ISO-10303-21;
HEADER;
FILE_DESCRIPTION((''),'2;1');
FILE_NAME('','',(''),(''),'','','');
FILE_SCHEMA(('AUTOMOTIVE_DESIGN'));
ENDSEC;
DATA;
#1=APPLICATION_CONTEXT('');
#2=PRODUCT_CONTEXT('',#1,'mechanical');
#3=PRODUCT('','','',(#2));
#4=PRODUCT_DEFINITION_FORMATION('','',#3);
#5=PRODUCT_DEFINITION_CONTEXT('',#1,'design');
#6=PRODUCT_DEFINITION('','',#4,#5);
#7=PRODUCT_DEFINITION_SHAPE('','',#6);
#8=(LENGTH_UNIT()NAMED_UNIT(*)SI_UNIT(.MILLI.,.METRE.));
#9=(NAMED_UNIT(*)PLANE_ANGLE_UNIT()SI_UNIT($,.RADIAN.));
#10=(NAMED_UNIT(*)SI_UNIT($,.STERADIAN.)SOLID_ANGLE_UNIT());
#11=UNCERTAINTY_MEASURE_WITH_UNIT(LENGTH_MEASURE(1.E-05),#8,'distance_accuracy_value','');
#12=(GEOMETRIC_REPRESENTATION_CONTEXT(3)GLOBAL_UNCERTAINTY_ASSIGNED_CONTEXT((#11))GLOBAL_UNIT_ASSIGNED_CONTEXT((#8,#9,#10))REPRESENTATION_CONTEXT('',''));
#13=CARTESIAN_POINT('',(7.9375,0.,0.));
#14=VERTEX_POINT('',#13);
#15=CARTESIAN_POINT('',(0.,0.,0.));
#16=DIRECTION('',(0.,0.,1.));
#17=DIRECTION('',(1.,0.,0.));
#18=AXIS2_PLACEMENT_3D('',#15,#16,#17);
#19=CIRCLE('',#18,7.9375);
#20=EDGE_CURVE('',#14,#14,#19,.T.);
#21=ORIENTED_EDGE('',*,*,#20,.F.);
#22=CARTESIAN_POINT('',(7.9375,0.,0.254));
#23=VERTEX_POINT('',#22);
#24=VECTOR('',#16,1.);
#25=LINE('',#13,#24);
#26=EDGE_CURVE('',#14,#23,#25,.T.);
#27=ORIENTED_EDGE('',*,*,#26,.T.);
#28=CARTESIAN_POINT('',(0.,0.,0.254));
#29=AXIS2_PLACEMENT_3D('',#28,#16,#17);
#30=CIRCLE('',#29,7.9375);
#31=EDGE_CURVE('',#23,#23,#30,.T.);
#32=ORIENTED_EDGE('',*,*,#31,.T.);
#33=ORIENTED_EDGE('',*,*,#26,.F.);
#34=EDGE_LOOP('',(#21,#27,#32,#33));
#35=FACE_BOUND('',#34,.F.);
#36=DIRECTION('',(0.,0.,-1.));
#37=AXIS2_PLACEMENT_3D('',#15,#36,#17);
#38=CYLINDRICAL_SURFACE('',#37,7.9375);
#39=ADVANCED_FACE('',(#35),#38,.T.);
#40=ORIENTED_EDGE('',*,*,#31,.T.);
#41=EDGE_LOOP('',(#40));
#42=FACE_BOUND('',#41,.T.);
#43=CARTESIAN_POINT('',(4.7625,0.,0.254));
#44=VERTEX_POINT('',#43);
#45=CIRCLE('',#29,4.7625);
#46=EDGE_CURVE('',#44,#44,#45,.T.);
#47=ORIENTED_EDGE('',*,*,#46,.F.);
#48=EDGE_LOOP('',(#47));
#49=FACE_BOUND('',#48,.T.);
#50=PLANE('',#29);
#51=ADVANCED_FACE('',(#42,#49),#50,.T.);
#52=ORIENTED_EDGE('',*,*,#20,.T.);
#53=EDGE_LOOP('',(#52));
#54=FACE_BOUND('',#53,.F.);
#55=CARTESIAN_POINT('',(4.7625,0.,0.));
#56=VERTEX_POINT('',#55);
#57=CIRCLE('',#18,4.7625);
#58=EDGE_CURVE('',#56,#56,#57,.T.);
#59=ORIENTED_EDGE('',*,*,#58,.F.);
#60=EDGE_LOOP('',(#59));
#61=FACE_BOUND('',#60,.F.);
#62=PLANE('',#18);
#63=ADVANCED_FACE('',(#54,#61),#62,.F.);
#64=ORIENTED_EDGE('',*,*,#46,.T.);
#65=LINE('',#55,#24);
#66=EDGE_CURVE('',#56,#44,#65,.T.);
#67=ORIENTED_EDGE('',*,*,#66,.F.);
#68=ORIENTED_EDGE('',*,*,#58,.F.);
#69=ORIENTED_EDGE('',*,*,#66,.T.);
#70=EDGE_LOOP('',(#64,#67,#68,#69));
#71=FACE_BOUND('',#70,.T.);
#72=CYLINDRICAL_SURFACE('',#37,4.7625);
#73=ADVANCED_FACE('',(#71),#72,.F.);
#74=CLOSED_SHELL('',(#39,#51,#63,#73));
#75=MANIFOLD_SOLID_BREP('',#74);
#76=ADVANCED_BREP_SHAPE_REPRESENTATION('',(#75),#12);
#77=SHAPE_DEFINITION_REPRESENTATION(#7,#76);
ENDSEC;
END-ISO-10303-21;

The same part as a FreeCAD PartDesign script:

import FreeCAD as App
import Part
import Sketcher
Q = App.Units.Quantity

doc = App.newDocument("Part")
body = doc.addObject("PartDesign::Body", "Body")

# Sketch on XY plane
sketch1 = body.newObject("Sketcher::SketchObject", "Sketch")
sketch1.AttachmentSupport = (doc.getObject("XY_Plane"), [""])
sketch1.MapMode = "FlatFace"
sketch1.addGeometry([
    Part.Circle(App.Vector(0, 0, 0), App.Vector(0, 0, 1), 7.9),
    Part.Circle(App.Vector(0, 0, 0), App.Vector(0, 0, 1), 4.8),
], False)
sketch1.addConstraint([
    Sketcher.Constraint("Coincident", 0, 3, -1, 1),
    Sketcher.Constraint("Coincident", 1, 3, -1, 1),
    Sketcher.Constraint("Diameter", 0, Q("0.625 in")),
    Sketcher.Constraint("Diameter", 1, Q("0.375 in")),
])
pad1 = body.newObject("PartDesign::Pad", "Pad")
pad1.Profile = sketch1
pad1.Length = Q("0.01 in")

doc.recompute()
